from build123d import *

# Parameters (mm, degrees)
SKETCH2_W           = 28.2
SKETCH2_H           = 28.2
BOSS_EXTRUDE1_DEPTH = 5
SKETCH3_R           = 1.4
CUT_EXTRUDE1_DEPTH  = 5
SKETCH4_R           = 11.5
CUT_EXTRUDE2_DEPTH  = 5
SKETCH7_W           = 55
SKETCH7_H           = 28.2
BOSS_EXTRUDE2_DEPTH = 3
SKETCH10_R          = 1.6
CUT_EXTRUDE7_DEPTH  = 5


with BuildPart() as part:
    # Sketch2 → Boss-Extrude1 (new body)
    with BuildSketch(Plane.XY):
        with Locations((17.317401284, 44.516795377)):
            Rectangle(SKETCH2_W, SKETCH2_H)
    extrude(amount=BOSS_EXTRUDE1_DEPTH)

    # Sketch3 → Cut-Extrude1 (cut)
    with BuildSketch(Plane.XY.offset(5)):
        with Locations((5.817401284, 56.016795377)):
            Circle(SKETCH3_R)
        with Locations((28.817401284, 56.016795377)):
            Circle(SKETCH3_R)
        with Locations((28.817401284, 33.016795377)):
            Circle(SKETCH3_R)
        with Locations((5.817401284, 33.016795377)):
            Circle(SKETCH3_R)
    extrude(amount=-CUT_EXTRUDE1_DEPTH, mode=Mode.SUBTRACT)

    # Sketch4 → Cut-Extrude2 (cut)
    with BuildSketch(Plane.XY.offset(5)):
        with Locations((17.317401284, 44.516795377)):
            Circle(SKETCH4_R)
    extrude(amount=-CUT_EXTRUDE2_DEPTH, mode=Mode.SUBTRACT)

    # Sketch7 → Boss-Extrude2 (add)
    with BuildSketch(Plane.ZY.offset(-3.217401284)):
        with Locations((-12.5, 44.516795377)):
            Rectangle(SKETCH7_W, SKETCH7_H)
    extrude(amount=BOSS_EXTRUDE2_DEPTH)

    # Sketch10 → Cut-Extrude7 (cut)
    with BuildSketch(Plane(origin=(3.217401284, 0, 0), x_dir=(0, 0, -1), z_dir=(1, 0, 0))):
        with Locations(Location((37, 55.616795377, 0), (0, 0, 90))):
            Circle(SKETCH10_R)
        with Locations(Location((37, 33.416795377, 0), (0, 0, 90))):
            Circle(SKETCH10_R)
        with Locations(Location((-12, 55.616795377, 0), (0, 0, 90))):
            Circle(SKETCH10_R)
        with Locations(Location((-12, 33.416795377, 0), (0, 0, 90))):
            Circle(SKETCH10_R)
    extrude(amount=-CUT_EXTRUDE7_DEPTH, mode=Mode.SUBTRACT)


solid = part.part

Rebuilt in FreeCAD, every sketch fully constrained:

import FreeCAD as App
import Part
import Sketcher
from FreeCAD import Vector


def add_polygon(sketch, points):
    """Adds a closed chain of lines whose ends are joined by coincident constraints."""
    first, n = sketch.GeometryCount, len(points)
    for a, b in zip(points, points[1:] + points[:1]):
        sketch.addGeometry(Part.LineSegment(App.Vector(*a, 0), App.Vector(*b, 0)), False)
    for i in range(n):
        sketch.addConstraint(Sketcher.Constraint("Coincident", first + i, 2, first + (i + 1) % n, 1))

doc = App.newDocument("Part")
body = doc.addObject("PartDesign::Body", "Body")

# Sketch on XY plane
sketch1 = doc.addObject("Sketcher::SketchObject", "Sketch")
body.addObject(sketch1)
sketch1.AttachmentSupport = (doc.XY_Plane, [""])
sketch1.MapMode = "FlatFace"
add_polygon(sketch1, [(3, 59), (3, 30), (31, 30), (31, 59)])  # lines 0-3
sketch1.addConstraint([
    Sketcher.Constraint("Vertical", 0),
    Sketcher.Constraint("Horizontal", 1),
    Sketcher.Constraint("Vertical", 2),
    Sketcher.Constraint("Horizontal", 3),
    Sketcher.Constraint("Equal", 3, 0),
    Sketcher.Constraint("DistanceX", 1, 1, 1, 2, 28.2),
    Sketcher.Constraint("DistanceX", -1, 1, 0, 2, 3.217401),
    Sketcher.Constraint("DistanceY", -1, 1, 0, 2, 30.416795),
])
pad1 = doc.addObject("PartDesign::Pad", "Pad")
body.addObject(pad1)
pad1.Profile = sketch1
pad1.Length = 5

# Sketch on XY plane
sketch2 = doc.addObject("Sketcher::SketchObject", "Sketch001")
body.addObject(sketch2)
sketch2.AttachmentSupport = (doc.XY_Plane, [""])
sketch2.MapMode = "FlatFace"
sketch2.AttachmentOffset = App.Placement(Vector(0, 0, 5), App.Rotation())
sketch2.addGeometry([
    Part.Circle(Vector(5.8, 56, 0), Vector(0, 0, 1), 1.4),
    Part.Circle(Vector(28.8, 56, 0), Vector(0, 0, 1), 1.4),
    Part.Circle(Vector(28.8, 33, 0), Vector(0, 0, 1), 1.4),
    Part.Circle(Vector(5.8, 33, 0), Vector(0, 0, 1), 1.4),
], False)
sketch2.addConstraint([
    Sketcher.Constraint("Equal", 0, 1),
    Sketcher.Constraint("Equal", 1, 2),
    Sketcher.Constraint("Equal", 2, 3),
    Sketcher.Constraint("Horizontal", 0, 3, 1, 3),
    Sketcher.Constraint("Horizontal", 2, 3, 3, 3),
    Sketcher.Constraint("Vertical", 1, 3, 2, 3),
    Sketcher.Constraint("Vertical", 0, 3, 3, 3),
    Sketcher.Constraint("Diameter", 0, 2.8),
    Sketcher.Constraint("DistanceX", 0, 3, 1, 3, 23.0),
    Sketcher.Constraint("DistanceY", 2, 3, 1, 3, 23.0),
    Sketcher.Constraint("DistanceX", -1, 1, 0, 3, 5.817401),
    Sketcher.Constraint("DistanceY", -1, 1, 0, 3, 56.016795),
])
pocket1 = doc.addObject("PartDesign::Pocket", "Pocket")
body.addObject(pocket1)
pocket1.Profile = sketch2
pocket1.Length = 5

# Sketch on XY plane
sketch3 = doc.addObject("Sketcher::SketchObject", "Sketch002")
body.addObject(sketch3)
sketch3.AttachmentSupport = (doc.XY_Plane, [""])
sketch3.MapMode = "FlatFace"
sketch3.AttachmentOffset = App.Placement(Vector(0, 0, 5), App.Rotation())
sketch3.addGeometry(Part.Circle(Vector(17, 45, 0), Vector(0, 0, 1), 12), False)
sketch3.addConstraint([
    Sketcher.Constraint("Diameter", 0, 23.0),
    Sketcher.Constraint("DistanceX", -1, 1, 0, 3, 17.317401),
    Sketcher.Constraint("DistanceY", -1, 1, 0, 3, 44.516795),
])
pocket2 = doc.addObject("PartDesign::Pocket", "Pocket001")
body.addObject(pocket2)
pocket2.Profile = sketch3
pocket2.Length = 5

# Sketch on YZ plane
sketch4 = doc.addObject("Sketcher::SketchObject", "Sketch003")
body.addObject(sketch4)
sketch4.AttachmentSupport = (doc.YZ_Plane, [""])
sketch4.MapMode = "FlatFace"
sketch4.AttachmentOffset = App.Placement(Vector(0, 0, 3.217401), App.Rotation())
add_polygon(sketch4, [(59, -40), (30, -40), (30, 15), (59, 15)])  # lines 0-3
sketch4.addConstraint([
    Sketcher.Constraint("Horizontal", 0),
    Sketcher.Constraint("Vertical", 1),
    Sketcher.Constraint("Horizontal", 2),
    Sketcher.Constraint("Vertical", 3),
    Sketcher.Constraint("DistanceY", 1, 1, 1, 2, 55.0),
    Sketcher.Constraint("DistanceX", 0, 2, 0, 1, 28.2),
    Sketcher.Constraint("DistanceY", 0, 2, -1, 1, 40.0),
    Sketcher.Constraint("DistanceX", -1, 1, 0, 2, 30.416795),
])
pad2 = doc.addObject("PartDesign::Pad", "Pad001")
body.addObject(pad2)
pad2.Profile = sketch4
pad2.Length = 3
pad2.Reversed = True

# Sketch on YZ plane
sketch5 = doc.addObject("Sketcher::SketchObject", "Sketch004")
body.addObject(sketch5)
sketch5.AttachmentSupport = (doc.YZ_Plane, [""])
sketch5.MapMode = "FlatFace"
sketch5.AttachmentOffset = App.Placement(Vector(0, 0, 3.217401), App.Rotation())
sketch5.addGeometry([
    Part.Circle(Vector(55.6, -37, 0), Vector(0, 0, 1), 1.6),
    Part.Circle(Vector(33.4, -37, 0), Vector(0, 0, 1), 1.6),
    Part.Circle(Vector(55.6, 12, 0), Vector(0, 0, 1), 1.6),
    Part.Circle(Vector(33.4, 12, 0), Vector(0, 0, 1), 1.6),
], False)
sketch5.addConstraint([
    Sketcher.Constraint("Equal", 0, 1),
    Sketcher.Constraint("Equal", 1, 2),
    Sketcher.Constraint("Equal", 2, 3),
    Sketcher.Constraint("Horizontal", 0, 3, 1, 3),
    Sketcher.Constraint("Horizontal", 2, 3, 3, 3),
    Sketcher.Constraint("Vertical", 0, 3, 2, 3),
    Sketcher.Constraint("Vertical", 1, 3, 3, 3),
    Sketcher.Constraint("Diameter", 0, 3.2),
    Sketcher.Constraint("DistanceY", 0, 3, -1, 1, 37.0),
    Sketcher.Constraint("DistanceY", -1, 1, 2, 3, 12.0),
    Sketcher.Constraint("DistanceX", 1, 3, 0, 3, 22.2),
    Sketcher.Constraint("DistanceX", -1, 1, 0, 3, 55.616795),
])
pocket3 = doc.addObject("PartDesign::Pocket", "Pocket002")
body.addObject(pocket3)
pocket3.Profile = sketch5
pocket3.Length = 5

doc.recompute()
